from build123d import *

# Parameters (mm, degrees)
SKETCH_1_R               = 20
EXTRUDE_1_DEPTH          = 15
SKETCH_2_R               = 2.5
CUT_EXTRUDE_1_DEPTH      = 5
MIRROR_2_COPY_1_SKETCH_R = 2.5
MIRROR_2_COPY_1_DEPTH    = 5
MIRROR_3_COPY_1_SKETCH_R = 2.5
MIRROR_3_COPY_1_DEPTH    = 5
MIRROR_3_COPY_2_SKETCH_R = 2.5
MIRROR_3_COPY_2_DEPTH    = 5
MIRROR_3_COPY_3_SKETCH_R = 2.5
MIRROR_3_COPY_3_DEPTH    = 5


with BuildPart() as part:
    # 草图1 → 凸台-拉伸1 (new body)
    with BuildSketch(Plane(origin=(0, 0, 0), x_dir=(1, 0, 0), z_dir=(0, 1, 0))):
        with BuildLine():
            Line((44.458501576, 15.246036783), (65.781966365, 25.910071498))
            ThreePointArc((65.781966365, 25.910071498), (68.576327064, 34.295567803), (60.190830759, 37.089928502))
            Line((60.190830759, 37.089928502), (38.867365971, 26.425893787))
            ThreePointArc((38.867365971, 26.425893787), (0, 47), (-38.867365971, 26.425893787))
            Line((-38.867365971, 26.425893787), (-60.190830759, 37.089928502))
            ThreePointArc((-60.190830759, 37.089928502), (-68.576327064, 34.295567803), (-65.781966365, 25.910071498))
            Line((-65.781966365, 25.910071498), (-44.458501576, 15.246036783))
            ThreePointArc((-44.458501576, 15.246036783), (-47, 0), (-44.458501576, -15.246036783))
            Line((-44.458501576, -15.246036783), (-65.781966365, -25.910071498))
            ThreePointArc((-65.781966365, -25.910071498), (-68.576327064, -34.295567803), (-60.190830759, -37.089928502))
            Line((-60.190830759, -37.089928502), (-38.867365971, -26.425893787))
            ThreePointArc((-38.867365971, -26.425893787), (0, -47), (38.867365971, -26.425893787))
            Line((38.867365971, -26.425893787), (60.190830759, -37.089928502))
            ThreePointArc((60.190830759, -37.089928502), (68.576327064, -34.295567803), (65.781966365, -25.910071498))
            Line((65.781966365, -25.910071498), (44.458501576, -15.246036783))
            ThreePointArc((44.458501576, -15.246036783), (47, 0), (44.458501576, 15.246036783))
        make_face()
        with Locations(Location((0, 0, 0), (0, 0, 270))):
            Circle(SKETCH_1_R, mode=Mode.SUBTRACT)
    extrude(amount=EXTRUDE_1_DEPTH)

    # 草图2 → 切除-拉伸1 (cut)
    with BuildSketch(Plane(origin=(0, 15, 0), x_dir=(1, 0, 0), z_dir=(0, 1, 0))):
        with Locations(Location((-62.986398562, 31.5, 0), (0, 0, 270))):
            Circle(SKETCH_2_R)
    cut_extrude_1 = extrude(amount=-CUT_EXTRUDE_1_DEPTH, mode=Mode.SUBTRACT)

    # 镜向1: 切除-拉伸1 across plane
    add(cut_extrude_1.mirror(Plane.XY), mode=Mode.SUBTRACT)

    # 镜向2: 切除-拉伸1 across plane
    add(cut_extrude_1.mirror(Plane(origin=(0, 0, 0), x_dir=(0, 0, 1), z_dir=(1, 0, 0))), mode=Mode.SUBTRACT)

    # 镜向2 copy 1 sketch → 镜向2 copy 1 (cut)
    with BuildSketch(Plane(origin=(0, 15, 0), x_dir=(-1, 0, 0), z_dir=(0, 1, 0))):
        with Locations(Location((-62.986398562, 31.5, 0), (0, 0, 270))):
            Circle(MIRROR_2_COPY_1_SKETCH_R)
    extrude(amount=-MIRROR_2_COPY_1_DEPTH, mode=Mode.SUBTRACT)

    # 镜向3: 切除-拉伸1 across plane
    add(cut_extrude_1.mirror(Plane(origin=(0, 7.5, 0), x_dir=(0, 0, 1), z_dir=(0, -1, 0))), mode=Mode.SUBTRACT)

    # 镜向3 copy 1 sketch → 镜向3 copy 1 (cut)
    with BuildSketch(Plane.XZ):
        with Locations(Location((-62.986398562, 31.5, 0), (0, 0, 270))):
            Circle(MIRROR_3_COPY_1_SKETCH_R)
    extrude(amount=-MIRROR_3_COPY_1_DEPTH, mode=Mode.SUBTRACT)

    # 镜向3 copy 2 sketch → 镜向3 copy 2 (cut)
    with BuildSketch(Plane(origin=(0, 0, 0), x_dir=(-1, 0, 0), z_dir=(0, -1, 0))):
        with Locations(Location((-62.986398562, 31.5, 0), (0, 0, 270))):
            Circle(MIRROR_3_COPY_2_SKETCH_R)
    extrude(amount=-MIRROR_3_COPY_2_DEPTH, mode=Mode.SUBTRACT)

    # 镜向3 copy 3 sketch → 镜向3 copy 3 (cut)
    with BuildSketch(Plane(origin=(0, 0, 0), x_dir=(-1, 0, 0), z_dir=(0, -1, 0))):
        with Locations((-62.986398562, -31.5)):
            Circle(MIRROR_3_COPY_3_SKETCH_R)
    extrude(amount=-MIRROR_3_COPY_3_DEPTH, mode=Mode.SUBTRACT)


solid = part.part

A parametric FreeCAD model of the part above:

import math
import FreeCAD as App
import Part
import Sketcher

V = App.Vector
Q = App.Units.Quantity

doc = App.newDocument("Part")
body = doc.addObject("PartDesign::Body", "Body")

sketch1 = doc.addObject("Sketcher::SketchObject", "Sketch")
body.addObject(sketch1)
sketch1.AttachmentSupport = (doc.XZ_Plane, [""])
sketch1.MapMode = "FlatFace"
sketch1.addGeometry([
    Part.LineSegment(V(44, -15, 0), V(66, -26, 0)),
    Part.ArcOfCircle(Part.Circle(V(63, -32, 0), V(0, 0, 1), 6), math.radians(-117), math.radians(63)),
    Part.LineSegment(V(60, -37, 0), V(39, -26, 0)),
    Part.ArcOfCircle(Part.Circle(V(0, 0, 0), V(0, 0, 1), 47), math.radians(-146), math.radians(-34)),
    Part.LineSegment(V(-39, -26, 0), V(-60, -37, 0)),
    Part.ArcOfCircle(Part.Circle(V(-63, -32, 0), V(0, 0, 1), 6), math.radians(117), math.radians(297)),
    Part.LineSegment(V(-66, -26, 0), V(-44, -15, 0)),
    Part.ArcOfCircle(Part.Circle(V(0, 0, 0), V(0, 0, 1), 47), math.radians(161), math.radians(199)),
    Part.LineSegment(V(-44, 15, 0), V(-66, 26, 0)),
    Part.ArcOfCircle(Part.Circle(V(-63, 32, 0), V(0, 0, 1), 6), math.radians(63), math.radians(243)),
    Part.LineSegment(V(-60, 37, 0), V(-39, 26, 0)),
    Part.ArcOfCircle(Part.Circle(V(0, 0, 0), V(0, 0, 1), 47), math.radians(34), math.radians(146)),
    Part.LineSegment(V(39, 26, 0), V(60, 37, 0)),
    Part.ArcOfCircle(Part.Circle(V(63, 32, 0), V(0, 0, 1), 6), math.radians(-63), math.radians(117)),
    Part.LineSegment(V(66, 26, 0), V(44, 15, 0)),
    Part.ArcOfCircle(Part.Circle(V(0, 0, 0), V(0, 0, 1), 47), math.radians(-19), math.radians(19)),
    Part.Circle(V(0, 0, 0), V(0, 0, 1), 20),
], False)
sketch1.addConstraint([
    Sketcher.Constraint("Tangent", 0, 2, 1, 2),
    Sketcher.Constraint("Tangent", 1, 1, 2, 1),
    Sketcher.Constraint("Coincident", 2, 2, 3, 2),
    Sketcher.Constraint("Coincident", 3, 1, 4, 1),
    Sketcher.Constraint("Tangent", 4, 2, 5, 2),
    Sketcher.Constraint("Tangent", 5, 1, 6, 1),
    Sketcher.Constraint("Coincident", 6, 2, 7, 2),
    Sketcher.Constraint("Coincident", 7, 1, 8, 1),
    Sketcher.Constraint("Tangent", 8, 2, 9, 2),
    Sketcher.Constraint("Tangent", 9, 1, 10, 1),
    Sketcher.Constraint("Coincident", 10, 2, 11, 2),
    Sketcher.Constraint("Coincident", 11, 1, 12, 1),
    Sketcher.Constraint("Tangent", 12, 2, 13, 2),
    Sketcher.Constraint("Tangent", 13, 1, 14, 1),
    Sketcher.Constraint("Coincident", 14, 2, 15, 2),
    Sketcher.Constraint("Coincident", 15, 1, 0, 1),
    Sketcher.Constraint("Coincident", 3, 3, -1, 1),
    Sketcher.Constraint("Coincident", 7, 3, -1, 1),
    Sketcher.Constraint("Coincident", 11, 3, -1, 1),
    Sketcher.Constraint("Coincident", 15, 3, -1, 1),
    Sketcher.Constraint("Coincident", 16, 3, -1, 1),
    Sketcher.Constraint("Equal", 1, 5),
    Sketcher.Constraint("Equal", 3, 7),
    Sketcher.Constraint("Equal", 5, 9),
    Sketcher.Constraint("Equal", 7, 11),
    Sketcher.Constraint("Equal", 9, 13),
    Sketcher.Constraint("Equal", 11, 15),
    Sketcher.Constraint("Symmetric", 1, 3, 9, 3, -1, 1),
    Sketcher.Constraint("Symmetric", 5, 3, 13, 3, -1, 1),
    Sketcher.Constraint("Symmetric", 1, 3, 5, 3, -2),
    Sketcher.Constraint("Parallel", 0, 2),
    Sketcher.Constraint("Parallel", 4, 6),
    Sketcher.Constraint("Parallel", 2, 8),
    Sketcher.Constraint("Parallel", 8, 10),
    Sketcher.Constraint("Parallel", 6, 12),
    Sketcher.Constraint("Parallel", 12, 14),
    Sketcher.Constraint("Horizontal", 2, 2, 3, 1),
    Sketcher.Constraint("Equal", 0, 2),
    Sketcher.Constraint("Diameter", 16, Q("40 mm")),
    Sketcher.Constraint("Radius", 3, Q("47 mm")),
    Sketcher.Constraint("Radius", 1, Q("6.25 mm")),
    Sketcher.Constraint("DistanceY", 5, 3, 9, 3, Q("63 mm")),
    Sketcher.Constraint("Angle", 0, Q("-26.57 deg")),
])
pad1 = doc.addObject("PartDesign::Pad", "Pad")
body.addObject(pad1)
pad1.Profile = sketch1
pad1.Length = 15
pad1.Reversed = True

sketch2 = doc.addObject("Sketcher::SketchObject", "Sketch001")
body.addObject(sketch2)
sketch2.AttachmentSupport = (doc.XZ_Plane, [""])
sketch2.MapMode = "FlatFace"
sketch2.AttachmentOffset = App.Placement(V(0, 0, -15), App.Rotation())
sketch2.addGeometry(Part.Circle(V(-63, -31.5, 0), V(0, 0, 1), 2.5), False)
sketch2.addConstraint([
    Sketcher.Constraint("Diameter", 0, Q("5 mm")),
    Sketcher.Constraint("DistanceY", 0, 3, -1, 1, Q("31.5 mm")),
    Sketcher.Constraint("DistanceX", 0, 3, -1, 1, Q("62.986399 mm")),
])
pocket1 = doc.addObject("PartDesign::Pocket", "Pocket")
body.addObject(pocket1)
pocket1.Profile = sketch2
pocket1.Length = 5
pocket1.Reversed = True
doc.recompute()

mirrored = doc.addObject("PartDesign::Mirrored", "Mirrored")
body.addObject(mirrored)
mirrored.Originals = [pocket1]
mirrored.MirrorPlane = (doc.XY_Plane, [""])
body.Tip = mirrored
doc.recompute()

mirrored2 = doc.addObject("PartDesign::Mirrored", "Mirrored001")
body.addObject(mirrored2)
mirrored2.Originals = [pocket1]
mirrored2.MirrorPlane = (doc.YZ_Plane, [""])
body.Tip = mirrored2

sketch3 = doc.addObject("Sketcher::SketchObject", "Sketch002")
body.addObject(sketch3)
sketch3.AttachmentSupport = (doc.XZ_Plane, [""])
sketch3.MapMode = "FlatFace"
sketch3.AttachmentOffset = App.Placement(V(0, 0, -15), App.Rotation())
sketch3.addGeometry(Part.Circle(V(63, 31.5, 0), V(0, 0, 1), 2.5), False)
sketch3.addConstraint([
    Sketcher.Constraint("Diameter", 0, Q("5 mm")),
    Sketcher.Constraint("DistanceY", -1, 1, 0, 3, Q("31.5 mm")),
    Sketcher.Constraint("DistanceX", -1, 1, 0, 3, Q("62.986399 mm")),
])
pocket2 = doc.addObject("PartDesign::Pocket", "Pocket001")
body.addObject(pocket2)
pocket2.Profile = sketch3
pocket2.Length = 5
pocket2.Reversed = True
doc.recompute()

datumplane = doc.addObject("PartDesign::Plane", "DatumPlane")
body.addObject(datumplane)
datumplane.AttachmentSupport = (doc.XZ_Plane, [""])
datumplane.MapMode = "FlatFace"
datumplane.AttachmentOffset = App.Placement(V(0, 0, -7.5), App.Rotation())
mirrored3 = doc.addObject("PartDesign::Mirrored", "Mirrored002")
body.addObject(mirrored3)
mirrored3.Originals = [pocket1]
mirrored3.MirrorPlane = (datumplane, [""])
body.Tip = mirrored3

sketch4 = doc.addObject("Sketcher::SketchObject", "Sketch003")
body.addObject(sketch4)
sketch4.AttachmentSupport = (doc.XZ_Plane, [""])
sketch4.MapMode = "FlatFace"
sketch4.addGeometry(Part.Circle(V(-63, 31.5, 0), V(0, 0, 1), 2.5), False)
sketch4.addConstraint([
    Sketcher.Constraint("Diameter", 0, Q("5 mm")),
    Sketcher.Constraint("DistanceY", -1, 1, 0, 3, Q("31.5 mm")),
    Sketcher.Constraint("DistanceX", 0, 3, -1, 1, Q("62.986399 mm")),
])
pocket3 = doc.addObject("PartDesign::Pocket", "Pocket002")
body.addObject(pocket3)
pocket3.Profile = sketch4
pocket3.Length = 5

sketch5 = doc.addObject("Sketcher::SketchObject", "Sketch004")
body.addObject(sketch5)
sketch5.AttachmentSupport = (doc.XZ_Plane, [""])
sketch5.MapMode = "FlatFace"
sketch5.addGeometry(Part.Circle(V(63, -31.5, 0), V(0, 0, 1), 2.5), False)
sketch5.addConstraint([
    Sketcher.Constraint("Diameter", 0, Q("5 mm")),
    Sketcher.Constraint("DistanceY", 0, 3, -1, 1, Q("31.5 mm")),
    Sketcher.Constraint("DistanceX", -1, 1, 0, 3, Q("62.986399 mm")),
])
pocket4 = doc.addObject("PartDesign::Pocket", "Pocket003")
body.addObject(pocket4)
pocket4.Profile = sketch5
pocket4.Length = 5

sketch6 = doc.addObject("Sketcher::SketchObject", "Sketch005")
body.addObject(sketch6)
sketch6.AttachmentSupport = (doc.XZ_Plane, [""])
sketch6.MapMode = "FlatFace"
sketch6.addGeometry(Part.Circle(V(63, 31.5, 0), V(0, 0, 1), 2.5), False)
sketch6.addConstraint([
    Sketcher.Constraint("Diameter", 0, Q("5 mm")),
    Sketcher.Constraint("DistanceY", -1, 1, 0, 3, Q("31.5 mm")),
    Sketcher.Constraint("DistanceX", -1, 1, 0, 3, Q("62.986399 mm")),
])
pocket5 = doc.addObject("PartDesign::Pocket", "Pocket004")
body.addObject(pocket5)
pocket5.Profile = sketch6
pocket5.Length = 5

doc.recompute()
